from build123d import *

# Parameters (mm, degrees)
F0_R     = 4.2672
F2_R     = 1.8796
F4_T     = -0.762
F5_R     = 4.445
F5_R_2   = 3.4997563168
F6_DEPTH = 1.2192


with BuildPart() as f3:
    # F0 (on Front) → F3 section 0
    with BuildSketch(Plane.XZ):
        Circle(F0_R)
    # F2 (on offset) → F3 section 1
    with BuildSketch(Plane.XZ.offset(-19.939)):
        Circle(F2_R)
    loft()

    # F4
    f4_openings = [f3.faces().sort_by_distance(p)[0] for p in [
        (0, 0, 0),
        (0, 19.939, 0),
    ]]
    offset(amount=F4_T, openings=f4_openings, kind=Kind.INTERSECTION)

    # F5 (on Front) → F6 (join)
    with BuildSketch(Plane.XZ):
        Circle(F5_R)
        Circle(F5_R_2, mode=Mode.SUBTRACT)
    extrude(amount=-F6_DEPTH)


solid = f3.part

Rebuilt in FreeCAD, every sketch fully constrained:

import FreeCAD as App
import Part
import Sketcher
Q = App.Units.Quantity


def faces_at(feature, points):
    """Names of the faces that lie closest to the given points."""
    faces = feature.Shape.Faces
    near = lambda p: min(range(len(faces)), key=lambda i: faces[i].distToShape(Part.Vertex(*p))[0])
    return sorted({f"Face{near(p) + 1}" for p in points})

doc = App.newDocument("Part")
body = doc.addObject("PartDesign::Body", "Body")

sketch1 = body.newObject("Sketcher::SketchObject", "Sketch")
sketch1.AttachmentSupport = (doc.getObject("XZ_Plane"), [""])
sketch1.MapMode = "FlatFace"
sketch1.addGeometry(Part.Circle(App.Vector(0, 0, 0), App.Vector(0, 0, 1), 4.3), False)
sketch1.addConstraint(Sketcher.Constraint("Coincident", 0, 3, -1, 1))
sketch1.addConstraint(Sketcher.Constraint("Diameter", 0, Q("0.336 in")))

sketch2 = body.newObject("Sketcher::SketchObject", "Sketch001")
sketch2.AttachmentSupport = (doc.getObject("XZ_Plane"), [""])
sketch2.MapMode = "FlatFace"
sketch2.AttachmentOffset = App.Placement(App.Vector(0, 0, -0.785 * 25.4), App.Rotation())
sketch2.addGeometry(Part.Circle(App.Vector(0, 0, 0), App.Vector(0, 0, 1), 1.9), False)
sketch2.addConstraint(Sketcher.Constraint("Coincident", 0, 3, -1, 1))
sketch2.addConstraint(Sketcher.Constraint("Diameter", 0, Q("0.148 in")))

additiveloft = body.newObject("PartDesign::AdditiveLoft", "AdditiveLoft")
additiveloft.Profile = sketch1
additiveloft.Sections = [sketch2]
doc.recompute()

thickness = body.newObject("PartDesign::Thickness", "Thickness")
thickness.Base = (additiveloft, faces_at(additiveloft, [(0, 0, 0), (0, 19.939, 0)]))
thickness.Value = Q("0.03 in")
thickness.Reversed = True
thickness.Join = "Intersection"

sketch3 = body.newObject("Sketcher::SketchObject", "Sketch002")
sketch3.AttachmentSupport = (doc.getObject("XZ_Plane"), [""])
sketch3.MapMode = "FlatFace"
sketch3.addGeometry(Part.Circle(App.Vector(0, 0, 0), App.Vector(0, 0, 1), 4.4), False)
sketch3.addGeometry(Part.Circle(App.Vector(0, 0, 0), App.Vector(0, 0, 1), 3.5), False)
sketch3.addConstraint(Sketcher.Constraint("Coincident", 0, 3, -1, 1))
sketch3.addConstraint(Sketcher.Constraint("Coincident", 1, 3, -1, 1))
sketch3.addConstraint(Sketcher.Constraint("Diameter", 0, Q("0.35 in")))
sketch3.addConstraint(Sketcher.Constraint("Diameter", 1, Q("6.999513 mm")))
pad1 = body.newObject("PartDesign::Pad", "Pad")
pad1.Profile = sketch3
pad1.Length = Q("0.048 in")
pad1.Reversed = True

doc.recompute()
